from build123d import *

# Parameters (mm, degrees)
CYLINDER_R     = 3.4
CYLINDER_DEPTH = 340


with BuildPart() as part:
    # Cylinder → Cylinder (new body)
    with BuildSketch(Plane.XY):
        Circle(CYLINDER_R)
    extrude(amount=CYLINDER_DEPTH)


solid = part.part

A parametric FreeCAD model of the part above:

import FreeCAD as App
import Part
import Sketcher
from FreeCAD import Vector

doc = App.newDocument("Part")
params = doc.addObject("Spreadsheet::Sheet", "Params")
for row, (alias, value) in enumerate([
    ("sketch1_diameter", "6.8 mm"),
    ("pad1_length", "340 mm"),
], start=1):
    params.set(f"A{row}", alias)
    params.set(f"B{row}", "=" + value)
    params.setAlias(f"B{row}", alias)

body = doc.addObject("PartDesign::Body", "Body")

# Sketch on XY plane
sketch1 = body.newObject("Sketcher::SketchObject", "Sketch")
sketch1.AttachmentSupport = (doc.getObject("XY_Plane"), [""])
sketch1.MapMode = "FlatFace"
sketch1.addGeometry(Part.Circle(Vector(0, 0, 0), Vector(0, 0, 1), 3.4), False)
sketch1.addConstraint(Sketcher.Constraint("Coincident", 0, 3, -1, 1))
sketch1.addConstraint(Sketcher.Constraint("Diameter", 0, 6.8))
sketch1.setExpression("Constraints[1]", "Params.sketch1_diameter")
pad1 = body.newObject("PartDesign::Pad", "Pad")
pad1.Profile = sketch1
pad1.setExpression("Length", "Params.pad1_length")

doc.recompute()
